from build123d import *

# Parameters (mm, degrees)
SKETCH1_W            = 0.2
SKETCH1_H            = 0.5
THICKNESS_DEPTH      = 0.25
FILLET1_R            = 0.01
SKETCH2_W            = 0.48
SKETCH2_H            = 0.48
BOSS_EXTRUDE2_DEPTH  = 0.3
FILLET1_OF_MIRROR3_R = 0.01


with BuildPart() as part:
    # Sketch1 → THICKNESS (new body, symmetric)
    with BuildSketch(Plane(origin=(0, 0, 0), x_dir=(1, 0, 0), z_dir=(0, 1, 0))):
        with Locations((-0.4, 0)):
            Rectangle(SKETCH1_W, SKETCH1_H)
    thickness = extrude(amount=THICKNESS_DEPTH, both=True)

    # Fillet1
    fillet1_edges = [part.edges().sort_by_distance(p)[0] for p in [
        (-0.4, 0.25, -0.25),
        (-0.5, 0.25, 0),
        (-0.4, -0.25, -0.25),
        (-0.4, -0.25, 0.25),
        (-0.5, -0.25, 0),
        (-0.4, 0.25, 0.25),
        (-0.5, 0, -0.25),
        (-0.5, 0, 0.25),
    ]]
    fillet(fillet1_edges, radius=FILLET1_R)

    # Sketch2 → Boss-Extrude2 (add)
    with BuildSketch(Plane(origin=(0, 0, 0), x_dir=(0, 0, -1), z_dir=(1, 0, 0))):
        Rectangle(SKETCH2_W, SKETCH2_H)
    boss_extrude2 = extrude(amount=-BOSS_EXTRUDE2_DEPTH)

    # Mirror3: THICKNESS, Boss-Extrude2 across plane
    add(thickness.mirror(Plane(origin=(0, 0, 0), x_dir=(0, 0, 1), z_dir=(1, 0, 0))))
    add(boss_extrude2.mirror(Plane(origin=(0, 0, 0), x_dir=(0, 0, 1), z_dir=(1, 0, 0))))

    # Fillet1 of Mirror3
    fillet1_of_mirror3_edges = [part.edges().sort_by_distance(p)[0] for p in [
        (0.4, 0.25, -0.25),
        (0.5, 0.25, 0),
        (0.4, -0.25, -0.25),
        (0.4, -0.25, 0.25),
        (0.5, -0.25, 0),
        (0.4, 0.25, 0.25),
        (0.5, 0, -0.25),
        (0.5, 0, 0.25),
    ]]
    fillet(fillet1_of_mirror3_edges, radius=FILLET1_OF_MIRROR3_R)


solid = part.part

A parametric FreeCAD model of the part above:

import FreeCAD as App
import Part
import Sketcher

V = App.Vector


def edges_at(feature, points):
    """Names of the edges that pass closest to the given points."""
    edges = feature.Shape.Edges
    near = lambda p: min(range(len(edges)), key=lambda i: edges[i].distToShape(Part.Vertex(*p))[0])
    return sorted({f"Edge{near(p) + 1}" for p in points})

doc = App.newDocument("Part")
body = doc.addObject("PartDesign::Body", "Body")

# Sketch on XZ plane
sketch1 = body.newObject("Sketcher::SketchObject", "Sketch")
sketch1.AttachmentSupport = (doc.getObject("XZ_Plane"), [""])
sketch1.MapMode = "FlatFace"
sketch1.addGeometry([
    Part.LineSegment(V(-0.5, -0.25, 0), V(-0.5, 0.25, 0)),
    Part.LineSegment(V(-0.5, 0.25, 0), V(-0.3, 0.25, 0)),
    Part.LineSegment(V(-0.3, 0.25, 0), V(-0.3, -0.25, 0)),
    Part.LineSegment(V(-0.3, -0.25, 0), V(-0.5, -0.25, 0)),
], False)
sketch1.addConstraint([
    Sketcher.Constraint("Coincident", 0, 2, 1, 1),
    Sketcher.Constraint("Coincident", 1, 2, 2, 1),
    Sketcher.Constraint("Coincident", 2, 2, 3, 1),
    Sketcher.Constraint("Coincident", 3, 2, 0, 1),
    Sketcher.Constraint("Vertical", 0),
    Sketcher.Constraint("Horizontal", 1),
    Sketcher.Constraint("Vertical", 2),
    Sketcher.Constraint("Horizontal", 3),
    Sketcher.Constraint("DistanceX", 1, 1, 1, 2, 0.2),
    Sketcher.Constraint("DistanceY", 0, 1, 0, 2, 0.5),
    Sketcher.Constraint("DistanceX", 0, 2, -1, 1, 0.5),
    Sketcher.Constraint("DistanceY", -1, 1, 0, 2, 0.25),
])
pad1 = body.newObject("PartDesign::Pad", "Pad")
pad1.Profile = sketch1
pad1.Length = 0.5
pad1.Midplane = True
doc.recompute()

fillet = body.newObject("PartDesign::Fillet", "Fillet")
fillet.Base = (pad1, edges_at(pad1, [
    (-0.4, 0.25, -0.25),
    (-0.5, 0.25, 0),
    (-0.4, -0.25, -0.25),
    (-0.4, -0.25, 0.25),
    (-0.5, -0.25, 0),
    (-0.4, 0.25, 0.25),
    (-0.5, 0, -0.25),
    (-0.5, 0, 0.25),
]))
fillet.Radius = 0.01

# Sketch on YZ plane
sketch2 = body.newObject("Sketcher::SketchObject", "Sketch001")
sketch2.AttachmentSupport = (doc.getObject("YZ_Plane"), [""])
sketch2.MapMode = "FlatFace"
sketch2.addGeometry([
    Part.LineSegment(V(0.24, 0.24, 0), V(-0.24, 0.24, 0)),
    Part.LineSegment(V(-0.24, 0.24, 0), V(-0.24, -0.24, 0)),
    Part.LineSegment(V(-0.24, -0.24, 0), V(0.24, -0.24, 0)),
    Part.LineSegment(V(0.24, -0.24, 0), V(0.24, 0.24, 0)),
], False)
sketch2.addConstraint([
    Sketcher.Constraint("Coincident", 0, 2, 1, 1),
    Sketcher.Constraint("Coincident", 1, 2, 2, 1),
    Sketcher.Constraint("Coincident", 2, 2, 3, 1),
    Sketcher.Constraint("Coincident", 3, 2, 0, 1),
    Sketcher.Constraint("Horizontal", 0),
    Sketcher.Constraint("Vertical", 1),
    Sketcher.Constraint("Horizontal", 2),
    Sketcher.Constraint("Vertical", 3),
    Sketcher.Constraint("Symmetric", 0, 2, 2, 2, -1, 1),
    Sketcher.Constraint("Equal", 2, 1),
    Sketcher.Constraint("DistanceX", 0, 2, 0, 1, 0.48),
])
pad2 = body.newObject("PartDesign::Pad", "Pad001")
pad2.Profile = sketch2
pad2.Length = 0.3
pad2.Reversed = True
doc.recompute()

mirrored = body.newObject("PartDesign::Mirrored", "Mirrored")
mirrored.Originals = [pad1, pad2]
mirrored.MirrorPlane = (doc.getObject("YZ_Plane"), [""])
body.Tip = mirrored
doc.recompute()

fillet2 = body.newObject("PartDesign::Fillet", "Fillet001")
fillet2.Base = (mirrored, edges_at(mirrored, [
    (0.4, 0.25, -0.25),
    (0.5, 0.25, 0),
    (0.4, -0.25, -0.25),
    (0.4, -0.25, 0.25),
    (0.5, -0.25, 0),
    (0.4, 0.25, 0.25),
    (0.5, 0, -0.25),
    (0.5, 0, 0.25),
]))
fillet2.Radius = 0.01

doc.recompute()
